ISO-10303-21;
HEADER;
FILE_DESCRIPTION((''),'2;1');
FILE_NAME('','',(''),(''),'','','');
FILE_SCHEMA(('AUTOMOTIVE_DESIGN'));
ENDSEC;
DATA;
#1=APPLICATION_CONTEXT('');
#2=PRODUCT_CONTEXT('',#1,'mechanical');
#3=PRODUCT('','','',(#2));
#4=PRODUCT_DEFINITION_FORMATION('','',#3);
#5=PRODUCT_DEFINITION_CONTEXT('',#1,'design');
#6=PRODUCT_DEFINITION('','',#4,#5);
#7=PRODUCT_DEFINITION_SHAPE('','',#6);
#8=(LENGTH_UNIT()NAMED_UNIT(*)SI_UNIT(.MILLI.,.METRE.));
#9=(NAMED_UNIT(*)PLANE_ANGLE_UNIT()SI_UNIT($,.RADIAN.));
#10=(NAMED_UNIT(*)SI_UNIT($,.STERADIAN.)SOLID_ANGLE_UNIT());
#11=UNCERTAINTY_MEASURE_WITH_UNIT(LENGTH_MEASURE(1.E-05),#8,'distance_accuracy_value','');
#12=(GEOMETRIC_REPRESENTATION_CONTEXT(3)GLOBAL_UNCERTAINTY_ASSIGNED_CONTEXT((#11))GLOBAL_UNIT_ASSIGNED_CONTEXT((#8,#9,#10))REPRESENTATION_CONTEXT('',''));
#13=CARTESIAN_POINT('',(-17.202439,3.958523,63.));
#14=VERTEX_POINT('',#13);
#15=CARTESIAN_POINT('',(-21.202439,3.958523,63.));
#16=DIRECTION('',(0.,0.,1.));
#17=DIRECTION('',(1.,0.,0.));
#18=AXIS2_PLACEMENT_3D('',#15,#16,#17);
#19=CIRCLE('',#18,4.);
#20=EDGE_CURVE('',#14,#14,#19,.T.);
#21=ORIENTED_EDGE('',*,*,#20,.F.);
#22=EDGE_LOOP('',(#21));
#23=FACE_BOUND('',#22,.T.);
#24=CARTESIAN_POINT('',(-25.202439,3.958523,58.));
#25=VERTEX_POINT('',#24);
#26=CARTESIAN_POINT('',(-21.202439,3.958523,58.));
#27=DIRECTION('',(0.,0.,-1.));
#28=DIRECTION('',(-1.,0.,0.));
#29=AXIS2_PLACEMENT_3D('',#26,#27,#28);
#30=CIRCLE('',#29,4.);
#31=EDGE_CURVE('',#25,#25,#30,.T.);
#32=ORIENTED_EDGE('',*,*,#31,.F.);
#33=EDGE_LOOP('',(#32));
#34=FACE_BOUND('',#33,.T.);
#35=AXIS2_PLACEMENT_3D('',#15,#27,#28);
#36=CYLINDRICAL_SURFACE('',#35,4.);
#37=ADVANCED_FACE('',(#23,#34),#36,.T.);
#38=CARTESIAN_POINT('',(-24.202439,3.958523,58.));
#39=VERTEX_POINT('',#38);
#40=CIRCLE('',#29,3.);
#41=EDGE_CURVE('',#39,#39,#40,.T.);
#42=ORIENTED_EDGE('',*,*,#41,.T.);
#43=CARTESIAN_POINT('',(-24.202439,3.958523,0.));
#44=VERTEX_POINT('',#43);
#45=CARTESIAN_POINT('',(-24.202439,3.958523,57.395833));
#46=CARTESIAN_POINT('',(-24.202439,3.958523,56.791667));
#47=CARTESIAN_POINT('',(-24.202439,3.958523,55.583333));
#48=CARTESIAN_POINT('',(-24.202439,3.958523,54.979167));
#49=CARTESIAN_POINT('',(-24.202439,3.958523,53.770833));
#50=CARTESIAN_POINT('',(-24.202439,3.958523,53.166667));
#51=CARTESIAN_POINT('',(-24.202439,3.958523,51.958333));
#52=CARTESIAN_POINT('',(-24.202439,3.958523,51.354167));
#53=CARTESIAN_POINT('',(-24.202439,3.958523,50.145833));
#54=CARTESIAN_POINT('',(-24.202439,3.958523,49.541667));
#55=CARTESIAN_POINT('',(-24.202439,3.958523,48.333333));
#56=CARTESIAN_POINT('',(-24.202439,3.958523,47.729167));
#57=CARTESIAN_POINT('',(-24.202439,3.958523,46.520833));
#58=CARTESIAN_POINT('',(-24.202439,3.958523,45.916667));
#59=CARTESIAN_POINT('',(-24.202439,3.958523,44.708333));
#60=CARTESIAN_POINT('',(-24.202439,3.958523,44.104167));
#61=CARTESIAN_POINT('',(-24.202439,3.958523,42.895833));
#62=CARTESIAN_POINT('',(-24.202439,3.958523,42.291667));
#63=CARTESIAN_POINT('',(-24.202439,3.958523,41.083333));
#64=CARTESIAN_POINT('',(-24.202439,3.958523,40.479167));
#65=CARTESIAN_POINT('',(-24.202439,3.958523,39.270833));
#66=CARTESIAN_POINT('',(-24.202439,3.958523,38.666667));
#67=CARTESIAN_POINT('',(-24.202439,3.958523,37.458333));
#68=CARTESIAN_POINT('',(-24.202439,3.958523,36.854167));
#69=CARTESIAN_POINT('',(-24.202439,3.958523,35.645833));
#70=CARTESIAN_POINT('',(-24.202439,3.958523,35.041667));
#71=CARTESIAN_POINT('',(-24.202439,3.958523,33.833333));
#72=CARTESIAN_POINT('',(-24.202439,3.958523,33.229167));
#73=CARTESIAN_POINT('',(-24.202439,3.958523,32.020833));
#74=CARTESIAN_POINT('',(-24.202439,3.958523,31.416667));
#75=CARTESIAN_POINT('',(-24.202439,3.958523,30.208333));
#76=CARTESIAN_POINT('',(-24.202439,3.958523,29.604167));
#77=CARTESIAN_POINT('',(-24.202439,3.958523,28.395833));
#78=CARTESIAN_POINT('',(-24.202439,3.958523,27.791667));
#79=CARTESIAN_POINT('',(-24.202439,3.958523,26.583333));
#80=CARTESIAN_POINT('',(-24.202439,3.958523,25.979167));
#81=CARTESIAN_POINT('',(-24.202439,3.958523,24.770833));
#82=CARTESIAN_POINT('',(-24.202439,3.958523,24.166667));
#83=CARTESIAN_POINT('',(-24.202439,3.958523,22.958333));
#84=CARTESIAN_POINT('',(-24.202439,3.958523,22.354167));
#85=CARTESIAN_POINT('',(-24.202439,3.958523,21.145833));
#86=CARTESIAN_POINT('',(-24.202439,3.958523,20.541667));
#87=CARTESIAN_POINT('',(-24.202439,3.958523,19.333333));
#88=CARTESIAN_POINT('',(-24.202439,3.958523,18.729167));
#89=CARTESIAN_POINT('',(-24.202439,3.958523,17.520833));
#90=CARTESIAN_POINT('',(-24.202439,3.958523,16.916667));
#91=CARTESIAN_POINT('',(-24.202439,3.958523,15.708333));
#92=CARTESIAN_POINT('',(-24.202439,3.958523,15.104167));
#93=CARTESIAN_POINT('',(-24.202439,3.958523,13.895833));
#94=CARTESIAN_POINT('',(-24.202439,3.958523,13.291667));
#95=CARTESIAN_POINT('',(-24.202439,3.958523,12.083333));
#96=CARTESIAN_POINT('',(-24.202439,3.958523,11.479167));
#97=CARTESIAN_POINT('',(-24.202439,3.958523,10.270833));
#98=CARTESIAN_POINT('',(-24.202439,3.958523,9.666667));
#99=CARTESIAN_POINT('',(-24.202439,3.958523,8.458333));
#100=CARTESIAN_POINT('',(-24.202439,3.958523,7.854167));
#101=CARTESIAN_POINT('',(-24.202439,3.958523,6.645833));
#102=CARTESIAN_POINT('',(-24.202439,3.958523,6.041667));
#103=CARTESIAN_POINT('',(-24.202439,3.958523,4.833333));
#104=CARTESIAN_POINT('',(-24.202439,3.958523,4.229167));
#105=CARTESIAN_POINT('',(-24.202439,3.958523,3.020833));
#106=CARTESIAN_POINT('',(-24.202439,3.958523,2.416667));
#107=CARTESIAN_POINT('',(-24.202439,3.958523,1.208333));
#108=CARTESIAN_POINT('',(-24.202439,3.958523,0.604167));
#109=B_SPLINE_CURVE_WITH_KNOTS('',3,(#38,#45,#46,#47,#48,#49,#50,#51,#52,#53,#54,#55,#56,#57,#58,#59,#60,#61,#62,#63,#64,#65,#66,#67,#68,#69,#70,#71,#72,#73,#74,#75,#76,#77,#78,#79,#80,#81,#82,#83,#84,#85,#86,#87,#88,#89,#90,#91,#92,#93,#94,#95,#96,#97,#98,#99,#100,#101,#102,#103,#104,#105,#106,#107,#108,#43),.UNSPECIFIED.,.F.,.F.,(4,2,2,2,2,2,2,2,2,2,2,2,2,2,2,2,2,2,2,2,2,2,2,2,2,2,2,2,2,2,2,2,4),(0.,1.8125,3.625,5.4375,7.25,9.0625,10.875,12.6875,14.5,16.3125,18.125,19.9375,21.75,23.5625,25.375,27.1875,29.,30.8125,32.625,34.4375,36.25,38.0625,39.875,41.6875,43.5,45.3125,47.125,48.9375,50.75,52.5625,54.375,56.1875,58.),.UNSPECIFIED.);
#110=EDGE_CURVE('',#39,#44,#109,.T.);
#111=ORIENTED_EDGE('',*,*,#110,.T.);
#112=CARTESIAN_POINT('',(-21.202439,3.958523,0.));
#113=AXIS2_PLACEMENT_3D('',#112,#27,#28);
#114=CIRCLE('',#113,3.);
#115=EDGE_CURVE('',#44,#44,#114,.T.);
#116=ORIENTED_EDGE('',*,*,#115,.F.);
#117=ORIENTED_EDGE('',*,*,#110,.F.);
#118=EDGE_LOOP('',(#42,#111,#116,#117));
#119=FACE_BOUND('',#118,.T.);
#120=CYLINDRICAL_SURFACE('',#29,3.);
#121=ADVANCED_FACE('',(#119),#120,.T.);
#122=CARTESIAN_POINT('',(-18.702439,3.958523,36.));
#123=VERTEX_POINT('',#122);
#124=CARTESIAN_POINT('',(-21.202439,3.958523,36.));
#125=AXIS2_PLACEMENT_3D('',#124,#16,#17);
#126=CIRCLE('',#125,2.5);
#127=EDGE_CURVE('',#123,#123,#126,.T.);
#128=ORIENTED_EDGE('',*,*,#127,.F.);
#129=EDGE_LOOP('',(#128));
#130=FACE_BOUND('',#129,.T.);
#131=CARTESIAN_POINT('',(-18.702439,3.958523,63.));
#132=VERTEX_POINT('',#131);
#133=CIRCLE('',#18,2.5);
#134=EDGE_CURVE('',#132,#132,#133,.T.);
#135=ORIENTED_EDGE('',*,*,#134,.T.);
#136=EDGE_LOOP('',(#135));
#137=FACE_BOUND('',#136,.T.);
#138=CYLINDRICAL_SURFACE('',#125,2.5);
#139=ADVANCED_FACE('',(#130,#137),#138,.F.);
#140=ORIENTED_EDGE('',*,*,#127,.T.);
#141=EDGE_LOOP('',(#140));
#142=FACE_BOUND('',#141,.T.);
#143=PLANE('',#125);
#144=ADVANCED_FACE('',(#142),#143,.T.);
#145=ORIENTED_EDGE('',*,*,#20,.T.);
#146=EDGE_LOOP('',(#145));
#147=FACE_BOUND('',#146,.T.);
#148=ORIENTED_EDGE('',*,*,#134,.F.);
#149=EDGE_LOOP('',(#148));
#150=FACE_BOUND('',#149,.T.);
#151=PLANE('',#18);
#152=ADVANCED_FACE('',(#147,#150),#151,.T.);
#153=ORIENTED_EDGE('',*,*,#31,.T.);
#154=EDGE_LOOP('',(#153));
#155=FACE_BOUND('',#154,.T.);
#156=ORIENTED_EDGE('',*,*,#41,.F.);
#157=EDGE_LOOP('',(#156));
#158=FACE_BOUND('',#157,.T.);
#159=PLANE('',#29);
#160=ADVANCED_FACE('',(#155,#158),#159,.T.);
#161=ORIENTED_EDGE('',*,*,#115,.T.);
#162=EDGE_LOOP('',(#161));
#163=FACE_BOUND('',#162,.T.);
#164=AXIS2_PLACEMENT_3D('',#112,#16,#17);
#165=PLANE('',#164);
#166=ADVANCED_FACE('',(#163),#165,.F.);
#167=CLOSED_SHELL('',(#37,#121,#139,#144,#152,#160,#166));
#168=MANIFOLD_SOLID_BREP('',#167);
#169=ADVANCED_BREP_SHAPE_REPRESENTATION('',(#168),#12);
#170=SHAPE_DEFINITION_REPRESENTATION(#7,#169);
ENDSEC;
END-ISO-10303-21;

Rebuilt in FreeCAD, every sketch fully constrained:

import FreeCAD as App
import Part
import Sketcher
Q = App.Units.Quantity

doc = App.newDocument("Part")
body = doc.addObject("PartDesign::Body", "Body")

sketch1 = body.newObject("Sketcher::SketchObject", "Sketch")
sketch1.AttachmentSupport = (doc.getObject("XY_Plane"), [""])
sketch1.MapMode = "FlatFace"
sketch1.addGeometry(Part.Circle(App.Vector(-21.2, 4, 0), App.Vector(0, 0, 1), 4), False)
sketch1.addConstraint(Sketcher.Constraint("Diameter", 0, Q("8 mm")))
sketch1.addConstraint(Sketcher.Constraint("DistanceX", 0, 3, -1, 1, Q("21.202439 mm")))
sketch1.addConstraint(Sketcher.Constraint("DistanceY", -1, 1, 0, 3, Q("3.958523 mm")))
pad1 = body.newObject("PartDesign::Pad", "Pad")
pad1.Profile = sketch1
pad1.Length = 63

sketch2 = body.newObject("Sketcher::SketchObject", "Sketch001")
sketch2.AttachmentSupport = (doc.getObject("XY_Plane"), [""])
sketch2.MapMode = "FlatFace"
sketch2.AttachmentOffset = App.Placement(App.Vector(0, 0, 63), App.Rotation())
sketch2.addGeometry(Part.Circle(App.Vector(-21.2, 4, 0), App.Vector(0, 0, 1), 2.5), False)
sketch2.addConstraint(Sketcher.Constraint("Diameter", 0, Q("5 mm")))
sketch2.addConstraint(Sketcher.Constraint("DistanceX", 0, 3, -1, 1, Q("21.202439 mm")))
sketch2.addConstraint(Sketcher.Constraint("DistanceY", -1, 1, 0, 3, Q("3.958523 mm")))
pocket1 = body.newObject("PartDesign::Pocket", "Pocket")
pocket1.Profile = sketch2
pocket1.Length = 27

sketch3 = body.newObject("Sketcher::SketchObject", "Sketch002")
sketch3.AttachmentSupport = (doc.getObject("XY_Plane"), [""])
sketch3.MapMode = "FlatFace"
sketch3.addGeometry(Part.Circle(App.Vector(-21.2, 4, 0), App.Vector(0, 0, 1), 12.8), False)
sketch3.addGeometry(Part.Circle(App.Vector(-21.2, 4, 0), App.Vector(0, 0, 1), 3), False)
sketch3.addConstraint(Sketcher.Constraint("Coincident", 1, 3, 0, 3))
sketch3.addConstraint(Sketcher.Constraint("Diameter", 1, Q("6 mm")))
sketch3.addConstraint(Sketcher.Constraint("Diameter", 0, Q("25.538886 mm")))
sketch3.addConstraint(Sketcher.Constraint("DistanceX", 0, 3, -1, 1, Q("21.202439 mm")))
sketch3.addConstraint(Sketcher.Constraint("DistanceY", -1, 1, 0, 3, Q("3.958523 mm")))
pocket2 = body.newObject("PartDesign::Pocket", "Pocket001")
pocket2.Profile = sketch3
pocket2.Length = 58
pocket2.Reversed = True

doc.recompute()
